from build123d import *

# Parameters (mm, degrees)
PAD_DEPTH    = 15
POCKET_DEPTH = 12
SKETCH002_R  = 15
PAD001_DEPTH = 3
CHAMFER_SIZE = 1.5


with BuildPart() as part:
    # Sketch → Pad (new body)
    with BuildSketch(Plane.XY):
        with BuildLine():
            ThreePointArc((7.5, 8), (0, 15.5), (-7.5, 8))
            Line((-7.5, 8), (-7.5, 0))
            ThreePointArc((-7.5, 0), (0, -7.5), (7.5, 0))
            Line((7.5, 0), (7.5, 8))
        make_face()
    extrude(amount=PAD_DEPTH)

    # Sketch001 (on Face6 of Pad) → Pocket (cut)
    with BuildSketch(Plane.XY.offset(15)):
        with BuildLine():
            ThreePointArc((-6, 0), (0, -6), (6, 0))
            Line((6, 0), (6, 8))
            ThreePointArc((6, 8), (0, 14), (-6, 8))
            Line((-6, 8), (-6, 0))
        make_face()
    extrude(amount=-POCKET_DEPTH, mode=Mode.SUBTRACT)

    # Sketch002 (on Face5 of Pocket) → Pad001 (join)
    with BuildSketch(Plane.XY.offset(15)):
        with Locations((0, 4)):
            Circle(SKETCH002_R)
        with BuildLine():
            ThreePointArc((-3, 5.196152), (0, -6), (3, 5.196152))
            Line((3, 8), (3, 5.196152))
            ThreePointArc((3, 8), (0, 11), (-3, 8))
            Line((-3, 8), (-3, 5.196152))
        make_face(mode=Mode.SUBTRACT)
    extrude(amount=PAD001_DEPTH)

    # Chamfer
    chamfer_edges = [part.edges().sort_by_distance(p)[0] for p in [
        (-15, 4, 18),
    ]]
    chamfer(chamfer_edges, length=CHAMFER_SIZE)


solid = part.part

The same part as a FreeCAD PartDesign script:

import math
import FreeCAD as App
import Part
import Sketcher

V = App.Vector
Q = App.Units.Quantity


def edges_at(feature, points):
    """Names of the edges that pass closest to the given points."""
    edges = feature.Shape.Edges
    near = lambda p: min(range(len(edges)), key=lambda i: edges[i].distToShape(Part.Vertex(*p))[0])
    return sorted({f"Edge{near(p) + 1}" for p in points})

doc = App.newDocument("Part")
params = doc.addObject("Spreadsheet::Sheet", "Params")
for row, (alias, value) in enumerate([
    ("sketch1_radius", "7.5 mm"),
    ("sketch1_height", "8 mm"),
    ("pad1_length", "15 mm"),
    ("sketch2_radius", "6 mm"),
    ("sketch2_height", "8 mm"),
    ("pocket1_length", "12 mm"),
    ("sketch3_diameter", "30 mm"),
    ("sketch3_radius", "6 mm"),
    ("sketch3_radius2", "3 mm"),
    ("pad2_length", "3 mm"),
    ("chamfer_size", "1.5 mm"),
], start=1):
    params.set(f"A{row}", alias)
    params.set(f"B{row}", "=" + value)
    params.setAlias(f"B{row}", alias)

body = doc.addObject("PartDesign::Body", "Body")

# Sketch on XY plane
sketch1 = body.newObject("Sketcher::SketchObject", "Sketch")
sketch1.AttachmentSupport = (doc.getObject("XY_Plane"), [""])
sketch1.MapMode = "FlatFace"
sketch1.addGeometry([
    Part.ArcOfCircle(Part.Circle(V(0, 8, 0), V(0, 0, 1), 8), math.radians(0), math.radians(180)),
    Part.LineSegment(V(-8, 8, 0), V(-8, 0, 0)),
    Part.ArcOfCircle(Part.Circle(V(0, 0, 0), V(0, 0, 1), 8), math.radians(180), math.radians(360)),
    Part.LineSegment(V(8, 0, 0), V(8, 8, 0)),
], False)
sketch1.addConstraint([
    Sketcher.Constraint("Tangent", 0, 2, 1, 1),
    Sketcher.Constraint("Tangent", 1, 2, 2, 1),
    Sketcher.Constraint("Tangent", 2, 2, 3, 1),
    Sketcher.Constraint("Tangent", 3, 2, 0, 1),
    Sketcher.Constraint("Vertical", 1),
    Sketcher.Constraint("Vertical", 3),
    Sketcher.Constraint("Coincident", 2, 3, -1, 1),
    Sketcher.Constraint("Radius", 0, Q("7.5 mm")),
    Sketcher.Constraint("DistanceY", 1, 2, 1, 1, Q("8 mm")),
])
sketch1.setExpression("Constraints[7]", "Params.sketch1_radius")
sketch1.setExpression("Constraints[8]", "Params.sketch1_height")
pad1 = body.newObject("PartDesign::Pad", "Pad")
pad1.Profile = sketch1
pad1.setExpression("Length", "Params.pad1_length")

# Sketch on XY plane
sketch2 = body.newObject("Sketcher::SketchObject", "Sketch001")
sketch2.AttachmentSupport = (doc.getObject("XY_Plane"), [""])
sketch2.MapMode = "FlatFace"
sketch2.AttachmentOffset = App.Placement(V(0, 0, 15), App.Rotation())
sketch2.addGeometry([
    Part.ArcOfCircle(Part.Circle(V(0, 0, 0), V(0, 0, 1), 6), math.radians(180), math.radians(360)),
    Part.LineSegment(V(6, 0, 0), V(6, 8, 0)),
    Part.ArcOfCircle(Part.Circle(V(0, 8, 0), V(0, 0, 1), 6), math.radians(0), math.radians(180)),
    Part.LineSegment(V(-6, 8, 0), V(-6, 0, 0)),
], False)
sketch2.addConstraint([
    Sketcher.Constraint("Tangent", 0, 2, 1, 1),
    Sketcher.Constraint("Tangent", 1, 2, 2, 1),
    Sketcher.Constraint("Tangent", 2, 2, 3, 1),
    Sketcher.Constraint("Tangent", 3, 2, 0, 1),
    Sketcher.Constraint("Vertical", 1),
    Sketcher.Constraint("Vertical", 3),
    Sketcher.Constraint("Coincident", 0, 3, -1, 1),
    Sketcher.Constraint("Radius", 0, Q("6 mm")),
    Sketcher.Constraint("DistanceY", 1, 1, 1, 2, Q("8 mm")),
])
sketch2.setExpression("Constraints[7]", "Params.sketch2_radius")
sketch2.setExpression("Constraints[8]", "Params.sketch2_height")
pocket1 = body.newObject("PartDesign::Pocket", "Pocket")
pocket1.Profile = sketch2
pocket1.setExpression("Length", "Params.pocket1_length")

# Sketch on XY plane
sketch3 = body.newObject("Sketcher::SketchObject", "Sketch002")
sketch3.AttachmentSupport = (doc.getObject("XY_Plane"), [""])
sketch3.MapMode = "FlatFace"
sketch3.AttachmentOffset = App.Placement(V(0, 0, 15), App.Rotation())
sketch3.addGeometry([
    Part.Circle(V(0, 4, 0), V(0, 0, 1), 15),  # 0
    Part.ArcOfCircle(Part.Circle(V(0, 0, 0), V(0, 0, 1), 6), math.radians(120), math.radians(420)),  # 1
    Part.LineSegment(V(-3, 5.2, 0), V(-3, 8, 0)),  # 2
    Part.ArcOfCircle(Part.Circle(V(0, 8, 0), V(0, 0, 1), 3), math.radians(0), math.radians(180)),  # 3
    Part.LineSegment(V(3, 8, 0), V(3, 5.2, 0)),  # 4
], False)
sketch3.addConstraint([
    Sketcher.Constraint("Coincident", 1, 1, 2, 1),
    Sketcher.Constraint("Tangent", 2, 2, 3, 2),
    Sketcher.Constraint("Tangent", 3, 1, 4, 1),
    Sketcher.Constraint("Coincident", 4, 2, 1, 2),
    Sketcher.Constraint("Vertical", 2),
    Sketcher.Constraint("Vertical", 4),
    Sketcher.Constraint("Coincident", 1, 3, -1, 1),
    Sketcher.Constraint("PointOnObject", 0, 3, -2),
    Sketcher.Constraint("PointOnObject", 3, 3, -2),
    Sketcher.Constraint("Diameter", 0, Q("30 mm")),
    Sketcher.Constraint("Radius", 1, Q("6 mm")),
    Sketcher.Constraint("Radius", 3, Q("3 mm")),
    Sketcher.Constraint("DistanceY", -1, 1, 0, 3, Q("4 mm")),
    Sketcher.Constraint("DistanceY", -1, 1, 3, 3, Q("8 mm")),
])
sketch3.setExpression("Constraints[9]", "Params.sketch3_diameter")
sketch3.setExpression("Constraints[10]", "Params.sketch3_radius")
sketch3.setExpression("Constraints[11]", "Params.sketch3_radius2")
pad2 = body.newObject("PartDesign::Pad", "Pad001")
pad2.Profile = sketch3
pad2.setExpression("Length", "Params.pad2_length")
doc.recompute()

chamfer = body.newObject("PartDesign::Chamfer", "Chamfer")
chamfer.Base = (pad2, edges_at(pad2, [(-15, 4, 18)]))
chamfer.setExpression("Size", "Params.chamfer_size")

doc.recompute()
